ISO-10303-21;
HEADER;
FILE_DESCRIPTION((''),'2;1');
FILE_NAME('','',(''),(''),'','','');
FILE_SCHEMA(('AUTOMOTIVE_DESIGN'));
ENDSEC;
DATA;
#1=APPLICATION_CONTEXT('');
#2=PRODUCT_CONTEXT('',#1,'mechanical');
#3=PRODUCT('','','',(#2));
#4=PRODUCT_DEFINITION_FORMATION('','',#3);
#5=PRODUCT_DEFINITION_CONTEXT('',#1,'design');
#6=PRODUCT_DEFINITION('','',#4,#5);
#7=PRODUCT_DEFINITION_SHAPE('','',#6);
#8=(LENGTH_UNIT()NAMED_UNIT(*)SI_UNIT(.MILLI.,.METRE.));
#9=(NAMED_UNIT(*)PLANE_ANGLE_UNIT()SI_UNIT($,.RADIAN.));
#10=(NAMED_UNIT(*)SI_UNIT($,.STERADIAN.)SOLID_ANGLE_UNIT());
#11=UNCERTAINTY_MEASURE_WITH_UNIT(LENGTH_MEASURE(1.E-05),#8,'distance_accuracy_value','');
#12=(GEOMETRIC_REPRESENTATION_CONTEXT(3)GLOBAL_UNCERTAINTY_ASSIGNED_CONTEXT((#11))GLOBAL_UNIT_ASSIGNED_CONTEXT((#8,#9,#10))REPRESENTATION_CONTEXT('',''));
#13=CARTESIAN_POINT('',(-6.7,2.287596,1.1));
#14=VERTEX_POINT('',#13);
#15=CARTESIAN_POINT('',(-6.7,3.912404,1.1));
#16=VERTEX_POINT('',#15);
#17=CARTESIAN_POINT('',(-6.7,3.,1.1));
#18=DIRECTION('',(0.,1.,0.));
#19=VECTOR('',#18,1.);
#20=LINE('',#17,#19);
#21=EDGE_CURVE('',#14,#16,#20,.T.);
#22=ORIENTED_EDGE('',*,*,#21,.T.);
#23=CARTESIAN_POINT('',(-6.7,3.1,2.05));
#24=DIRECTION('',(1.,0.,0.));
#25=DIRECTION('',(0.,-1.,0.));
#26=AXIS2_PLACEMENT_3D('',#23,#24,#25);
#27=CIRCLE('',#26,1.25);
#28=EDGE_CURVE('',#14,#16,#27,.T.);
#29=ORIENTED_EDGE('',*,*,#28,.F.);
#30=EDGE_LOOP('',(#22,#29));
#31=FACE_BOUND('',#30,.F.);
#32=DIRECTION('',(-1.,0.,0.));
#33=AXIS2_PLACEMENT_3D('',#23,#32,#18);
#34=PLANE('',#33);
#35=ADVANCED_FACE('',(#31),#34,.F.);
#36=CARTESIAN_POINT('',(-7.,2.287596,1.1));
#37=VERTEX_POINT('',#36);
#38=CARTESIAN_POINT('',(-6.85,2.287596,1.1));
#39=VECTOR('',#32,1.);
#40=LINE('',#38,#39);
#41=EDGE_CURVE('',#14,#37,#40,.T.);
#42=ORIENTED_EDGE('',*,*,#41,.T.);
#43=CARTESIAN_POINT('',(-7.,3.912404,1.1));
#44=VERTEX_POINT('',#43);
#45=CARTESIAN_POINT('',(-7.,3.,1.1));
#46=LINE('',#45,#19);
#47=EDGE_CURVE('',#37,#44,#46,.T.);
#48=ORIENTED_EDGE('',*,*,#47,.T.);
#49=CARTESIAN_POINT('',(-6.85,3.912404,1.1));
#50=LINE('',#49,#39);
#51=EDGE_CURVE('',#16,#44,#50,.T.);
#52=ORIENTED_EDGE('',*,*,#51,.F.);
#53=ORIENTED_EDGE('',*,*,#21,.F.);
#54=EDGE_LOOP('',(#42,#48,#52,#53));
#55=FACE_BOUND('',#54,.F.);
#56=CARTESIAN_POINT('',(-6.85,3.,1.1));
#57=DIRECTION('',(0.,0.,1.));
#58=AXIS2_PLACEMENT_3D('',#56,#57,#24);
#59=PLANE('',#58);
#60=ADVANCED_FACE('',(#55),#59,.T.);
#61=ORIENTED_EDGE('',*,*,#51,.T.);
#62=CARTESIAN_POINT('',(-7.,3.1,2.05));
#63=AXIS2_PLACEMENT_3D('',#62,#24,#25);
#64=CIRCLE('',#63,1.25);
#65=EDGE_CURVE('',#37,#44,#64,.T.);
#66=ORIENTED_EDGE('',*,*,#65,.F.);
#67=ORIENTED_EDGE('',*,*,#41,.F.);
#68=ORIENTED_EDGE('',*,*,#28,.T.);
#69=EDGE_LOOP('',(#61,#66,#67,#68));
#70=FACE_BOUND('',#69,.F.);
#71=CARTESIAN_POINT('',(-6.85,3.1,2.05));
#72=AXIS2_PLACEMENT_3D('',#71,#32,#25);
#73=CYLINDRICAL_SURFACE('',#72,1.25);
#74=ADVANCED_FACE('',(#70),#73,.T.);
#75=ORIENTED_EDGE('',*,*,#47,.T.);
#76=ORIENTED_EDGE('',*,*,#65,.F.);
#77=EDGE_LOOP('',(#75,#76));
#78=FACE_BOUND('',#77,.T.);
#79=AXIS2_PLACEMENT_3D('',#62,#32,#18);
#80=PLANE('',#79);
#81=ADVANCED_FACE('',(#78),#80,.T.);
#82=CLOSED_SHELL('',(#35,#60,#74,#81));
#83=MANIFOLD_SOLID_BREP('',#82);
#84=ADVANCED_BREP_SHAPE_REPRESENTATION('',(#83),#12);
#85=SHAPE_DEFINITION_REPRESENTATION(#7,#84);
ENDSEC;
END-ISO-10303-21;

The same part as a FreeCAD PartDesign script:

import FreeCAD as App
import Part
import Sketcher
from FreeCAD import Vector
Q = App.Units.Quantity

doc = App.newDocument("Part")
body = doc.addObject("PartDesign::Body", "Body")

# Sketch on XY plane
sketch1 = doc.addObject("Sketcher::SketchObject", "Sketch")
body.addObject(sketch1)
sketch1.AttachmentSupport = (doc.XY_Plane, [""])
sketch1.MapMode = "FlatFace"
sketch1.AttachmentOffset = App.Placement(Vector(0, 0, 1.1), App.Rotation())
sketch1.addGeometry([
    Part.LineSegment(Vector(6.7, 4.5, 0), Vector(6.7, 1.5, 0)),
    Part.LineSegment(Vector(6.7, 1.5, 0), Vector(7, 1.5, 0)),
    Part.LineSegment(Vector(7, 1.5, 0), Vector(7, 4.5, 0)),
    Part.LineSegment(Vector(7, 4.5, 0), Vector(6.7, 4.5, 0)),
], False)
sketch1.addConstraint([
    Sketcher.Constraint("Coincident", 0, 2, 1, 1),
    Sketcher.Constraint("Coincident", 1, 2, 2, 1),
    Sketcher.Constraint("Coincident", 2, 2, 3, 1),
    Sketcher.Constraint("Coincident", 3, 2, 0, 1),
    Sketcher.Constraint("Vertical", 0),
    Sketcher.Constraint("Horizontal", 1),
    Sketcher.Constraint("Vertical", 2),
    Sketcher.Constraint("Horizontal", 3),
    Sketcher.Constraint("DistanceY", 0, 2, 0, 1, Q("3 mm")),
    Sketcher.Constraint("DistanceX", 1, 1, 1, 2, Q("0.3 mm")),
    Sketcher.Constraint("DistanceX", -1, 1, 1, 2, Q("7 mm")),
    Sketcher.Constraint("DistanceY", -1, 1, 0, 2, Q("1.5 mm")),
])
pad1 = doc.addObject("PartDesign::Pad", "Pad")
body.addObject(pad1)
pad1.Profile = sketch1
pad1.Length = 2
body2 = doc.addObject("PartDesign::Body", "Body001")

# Sketch on XY plane
sketch2 = doc.addObject("Sketcher::SketchObject", "Sketch001")
body2.addObject(sketch2)
sketch2.AttachmentSupport = (doc.getObject("XY_Plane001"), [""])
sketch2.MapMode = "FlatFace"
sketch2.AttachmentOffset = App.Placement(Vector(0, 0, 2.05), App.Rotation())
sketch2.addGeometry([
    Part.LineSegment(Vector(7, 3.1, 0), Vector(6.7, 3.1, 0)),
    Part.LineSegment(Vector(6.7, 3.1, 0), Vector(6.7, 1.85, 0)),
    Part.LineSegment(Vector(6.7, 1.85, 0), Vector(7, 1.85, 0)),
    Part.LineSegment(Vector(7, 1.85, 0), Vector(7, 3.1, 0)),
], False)
sketch2.addGeometry(Part.LineSegment(Vector(6.7, 3.1, 0), Vector(7, 3.1, 0)), True)  # axis
sketch2.addConstraint([
    Sketcher.Constraint("Coincident", 0, 2, 1, 1),
    Sketcher.Constraint("Coincident", 1, 2, 2, 1),
    Sketcher.Constraint("Coincident", 2, 2, 3, 1),
    Sketcher.Constraint("Coincident", 3, 2, 0, 1),
    Sketcher.Constraint("Horizontal", 0),
    Sketcher.Constraint("Vertical", 1),
    Sketcher.Constraint("Horizontal", 2),
    Sketcher.Constraint("Vertical", 3),
    Sketcher.Constraint("Horizontal", 4),
    Sketcher.Constraint("Coincident", 4, 1, 0, 2),
    Sketcher.Constraint("Vertical", 2, 2, 4, 2),
    Sketcher.Constraint("DistanceX", 0, 2, 0, 1, Q("0.3 mm")),
    Sketcher.Constraint("DistanceX", -1, 1, 2, 2, Q("7 mm")),
    Sketcher.Constraint("DistanceY", 1, 2, 1, 1, Q("1.25 mm")),
    Sketcher.Constraint("DistanceY", -1, 1, 0, 2, Q("3.1 mm")),
])
revolution = doc.addObject("PartDesign::Revolution", "Revolution")
body2.addObject(revolution)
revolution.Profile = sketch2
revolution.ReferenceAxis = (sketch2, ["Axis0"])
revolution.Angle = 180
doc.recompute()

boolean = doc.addObject("PartDesign::Boolean", "Boolean")
body2.addObject(boolean)
boolean.Type = "Cut"
boolean.addObjects([body])
body3 = doc.addObject("PartDesign::Body", "Body002")
doc.recompute()

mirroring = doc.addObject("Part::Mirroring", "Mirroring")
mirroring.Source = body2
mirroring.Base = Vector(0, 0, 0)
mirroring.Normal = Vector(1, 0, 0)
body3.BaseFeature = mirroring
doc.recompute()
body2.Visibility = False
mirroring.Visibility = False

doc.recompute()
